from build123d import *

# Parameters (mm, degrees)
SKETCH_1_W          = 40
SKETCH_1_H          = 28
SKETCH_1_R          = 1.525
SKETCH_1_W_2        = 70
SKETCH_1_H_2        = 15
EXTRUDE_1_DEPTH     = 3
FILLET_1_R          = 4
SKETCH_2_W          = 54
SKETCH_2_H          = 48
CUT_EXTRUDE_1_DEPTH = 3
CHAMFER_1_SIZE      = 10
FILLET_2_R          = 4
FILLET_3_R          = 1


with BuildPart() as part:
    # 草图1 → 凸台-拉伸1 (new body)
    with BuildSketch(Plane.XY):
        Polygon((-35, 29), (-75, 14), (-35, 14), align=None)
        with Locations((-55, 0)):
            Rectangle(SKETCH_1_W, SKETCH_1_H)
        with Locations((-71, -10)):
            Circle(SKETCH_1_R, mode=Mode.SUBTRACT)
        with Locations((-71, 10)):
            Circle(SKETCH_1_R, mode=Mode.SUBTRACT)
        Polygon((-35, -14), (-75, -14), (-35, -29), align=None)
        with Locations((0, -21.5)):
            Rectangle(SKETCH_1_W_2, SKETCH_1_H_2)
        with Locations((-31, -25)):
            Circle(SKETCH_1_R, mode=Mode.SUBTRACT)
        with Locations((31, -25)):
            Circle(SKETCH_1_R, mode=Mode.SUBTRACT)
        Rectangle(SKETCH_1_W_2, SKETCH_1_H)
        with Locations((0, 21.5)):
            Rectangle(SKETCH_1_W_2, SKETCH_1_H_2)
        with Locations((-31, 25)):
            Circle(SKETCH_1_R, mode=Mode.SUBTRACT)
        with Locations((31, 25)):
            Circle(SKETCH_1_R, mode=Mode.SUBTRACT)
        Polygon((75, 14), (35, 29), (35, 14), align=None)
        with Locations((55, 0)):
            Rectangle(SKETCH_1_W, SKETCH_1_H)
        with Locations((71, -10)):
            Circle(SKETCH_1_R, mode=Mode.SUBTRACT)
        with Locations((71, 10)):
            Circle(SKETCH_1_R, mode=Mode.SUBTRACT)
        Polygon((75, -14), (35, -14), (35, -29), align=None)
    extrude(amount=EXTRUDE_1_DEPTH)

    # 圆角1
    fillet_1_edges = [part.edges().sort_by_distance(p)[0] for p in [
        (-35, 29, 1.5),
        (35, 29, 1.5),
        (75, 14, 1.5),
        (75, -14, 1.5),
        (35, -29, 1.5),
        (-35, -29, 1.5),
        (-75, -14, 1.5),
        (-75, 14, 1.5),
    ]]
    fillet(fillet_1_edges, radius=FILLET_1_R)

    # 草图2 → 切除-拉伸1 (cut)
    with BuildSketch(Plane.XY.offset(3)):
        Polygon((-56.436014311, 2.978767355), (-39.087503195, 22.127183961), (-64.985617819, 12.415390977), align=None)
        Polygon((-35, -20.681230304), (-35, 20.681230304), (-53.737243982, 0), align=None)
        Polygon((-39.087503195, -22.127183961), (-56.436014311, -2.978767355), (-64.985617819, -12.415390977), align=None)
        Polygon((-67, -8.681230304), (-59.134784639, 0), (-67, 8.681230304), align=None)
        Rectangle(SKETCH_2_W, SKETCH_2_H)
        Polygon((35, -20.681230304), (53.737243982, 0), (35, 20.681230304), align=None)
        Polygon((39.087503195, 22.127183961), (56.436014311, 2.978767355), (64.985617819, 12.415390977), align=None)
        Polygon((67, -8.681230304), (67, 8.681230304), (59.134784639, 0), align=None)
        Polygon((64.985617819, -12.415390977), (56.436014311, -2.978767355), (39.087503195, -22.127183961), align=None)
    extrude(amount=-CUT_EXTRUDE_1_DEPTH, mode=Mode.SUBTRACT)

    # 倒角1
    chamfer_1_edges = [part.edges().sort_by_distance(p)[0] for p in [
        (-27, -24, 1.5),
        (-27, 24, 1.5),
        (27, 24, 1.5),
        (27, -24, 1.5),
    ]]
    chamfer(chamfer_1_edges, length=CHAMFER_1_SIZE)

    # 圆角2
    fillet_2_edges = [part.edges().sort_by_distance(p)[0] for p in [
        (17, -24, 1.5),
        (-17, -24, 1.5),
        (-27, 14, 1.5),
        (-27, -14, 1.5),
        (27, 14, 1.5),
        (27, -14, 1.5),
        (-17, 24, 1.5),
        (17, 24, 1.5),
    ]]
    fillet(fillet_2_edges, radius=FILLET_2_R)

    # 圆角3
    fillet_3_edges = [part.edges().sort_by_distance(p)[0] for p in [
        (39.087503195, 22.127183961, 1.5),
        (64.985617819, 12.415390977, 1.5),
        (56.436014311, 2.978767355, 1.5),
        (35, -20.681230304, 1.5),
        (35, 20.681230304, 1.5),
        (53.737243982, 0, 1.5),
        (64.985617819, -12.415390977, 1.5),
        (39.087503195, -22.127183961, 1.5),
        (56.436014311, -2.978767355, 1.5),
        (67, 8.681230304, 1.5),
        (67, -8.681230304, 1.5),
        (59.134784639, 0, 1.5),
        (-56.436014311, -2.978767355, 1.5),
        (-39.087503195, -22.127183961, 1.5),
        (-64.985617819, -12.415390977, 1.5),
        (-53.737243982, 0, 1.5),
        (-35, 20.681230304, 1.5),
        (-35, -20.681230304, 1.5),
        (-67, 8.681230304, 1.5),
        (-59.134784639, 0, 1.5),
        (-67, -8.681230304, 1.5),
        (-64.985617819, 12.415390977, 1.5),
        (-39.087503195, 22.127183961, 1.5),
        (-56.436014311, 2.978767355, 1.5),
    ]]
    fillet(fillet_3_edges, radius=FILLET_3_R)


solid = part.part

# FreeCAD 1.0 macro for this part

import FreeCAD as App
import Part
import Sketcher

V = App.Vector
Q = App.Units.Quantity


def edges_at(feature, points):
    """Names of the edges that pass closest to the given points."""
    edges = feature.Shape.Edges
    near = lambda p: min(range(len(edges)), key=lambda i: edges[i].distToShape(Part.Vertex(*p))[0])
    return sorted({f"Edge{near(p) + 1}" for p in points})


def add_polygon(sketch, points):
    """Adds a closed chain of lines whose ends are joined by coincident constraints."""
    first, n = sketch.GeometryCount, len(points)
    for a, b in zip(points, points[1:] + points[:1]):
        sketch.addGeometry(Part.LineSegment(App.Vector(*a, 0), App.Vector(*b, 0)), False)
    for i in range(n):
        sketch.addConstraint(Sketcher.Constraint("Coincident", first + i, 2, first + (i + 1) % n, 1))

doc = App.newDocument("Part")
params = doc.addObject("Spreadsheet::Sheet", "Params")
for row, (alias, value) in enumerate([
    ("sketch1_diameter", "3.05 mm"),
    ("sketch1_width", "70 mm"),
    ("sketch1_height", "28 mm"),
    ("pad1_length", "3 mm"),
    ("fillet_radius", "4 mm"),
    ("sketch2_width", "54 mm"),
    ("sketch2_height", "48 mm"),
    ("pocket1_length", "3 mm"),
    ("chamfer_size", "10 mm"),
    ("fillet2_radius", "4 mm"),
    ("fillet3_radius", "1 mm"),
], start=1):
    params.set(f"A{row}", alias)
    params.set(f"B{row}", "=" + value)
    params.setAlias(f"B{row}", alias)

body = doc.addObject("PartDesign::Body", "Body")

# Sketch on XY plane
sketch1 = body.newObject("Sketcher::SketchObject", "Sketch")
sketch1.AttachmentSupport = (doc.getObject("XY_Plane"), [""])
sketch1.MapMode = "FlatFace"
add_polygon(sketch1, [(-35, 29), (-75, 14), (-75, -14), (-35, -29), (35, -29), (75, -14), (75, 14), (35, 29)])  # lines 0-7
sketch1.addGeometry(Part.Circle(V(-31, -25, 0), V(0, 0, 1), 1.5), False)  # 8
sketch1.addGeometry(Part.Circle(V(-71, -10, 0), V(0, 0, 1), 1.5), False)  # 9
sketch1.addGeometry(Part.Circle(V(31, -25, 0), V(0, 0, 1), 1.5), False)  # 10
sketch1.addGeometry(Part.Circle(V(71, -10, 0), V(0, 0, 1), 1.5), False)  # 11
sketch1.addGeometry(Part.Circle(V(-71, 10, 0), V(0, 0, 1), 1.5), False)  # 12
sketch1.addGeometry(Part.Circle(V(-31, 25, 0), V(0, 0, 1), 1.5), False)  # 13
sketch1.addGeometry(Part.Circle(V(71, 10, 0), V(0, 0, 1), 1.5), False)  # 14
sketch1.addGeometry(Part.Circle(V(31, 25, 0), V(0, 0, 1), 1.5), False)  # 15
sketch1.addConstraint([
    Sketcher.Constraint("Vertical", 1),
    Sketcher.Constraint("Horizontal", 3),
    Sketcher.Constraint("Vertical", 5),
    Sketcher.Constraint("Horizontal", 7),
    Sketcher.Constraint("Equal", 8, 9),
    Sketcher.Constraint("Equal", 9, 10),
    Sketcher.Constraint("Equal", 10, 11),
    Sketcher.Constraint("Equal", 11, 12),
    Sketcher.Constraint("Equal", 12, 13),
    Sketcher.Constraint("Equal", 13, 14),
    Sketcher.Constraint("Equal", 14, 15),
    Sketcher.Constraint("Symmetric", 11, 3, 12, 3, -1, 1),
    Sketcher.Constraint("Symmetric", 10, 3, 13, 3, -1, 1),
    Sketcher.Constraint("Symmetric", 9, 3, 14, 3, -1, 1),
    Sketcher.Constraint("Symmetric", 8, 3, 15, 3, -1, 1),
    Sketcher.Constraint("Symmetric", 0, 2, 4, 2, -1, 1),
    Sketcher.Constraint("Symmetric", 2, 2, 6, 2, -1, 1),
    Sketcher.Constraint("Symmetric", 8, 3, 10, 3, -2),
    Sketcher.Constraint("Symmetric", 9, 3, 11, 3, -2),
    Sketcher.Constraint("Parallel", 0, 4),
    Sketcher.Constraint("Parallel", 2, 6),
    Sketcher.Constraint("Horizontal", 1, 2, 4, 2),
    Sketcher.Constraint("Vertical", 3, 2, 6, 2),
    Sketcher.Constraint("Diameter", 8, Q("3.05 mm")),
    Sketcher.Constraint("DistanceX", 3, 1, 3, 2, Q("70 mm")),
    Sketcher.Constraint("DistanceY", 1, 2, 1, 1, Q("28 mm")),
    Sketcher.Constraint("DistanceX", 8, 3, -1, 1, Q("31 mm")),
    Sketcher.Constraint("DistanceY", 8, 3, -1, 1, Q("25 mm")),
    Sketcher.Constraint("DistanceX", 9, 3, -1, 1, Q("71 mm")),
    Sketcher.Constraint("DistanceY", 9, 3, -1, 1, Q("10 mm")),
    Sketcher.Constraint("DistanceX", 0, 2, -1, 1, Q("75 mm")),
    Sketcher.Constraint("DistanceY", 2, 2, -1, 1, Q("29 mm")),
])
sketch1.setExpression("Constraints[31]", "Params.sketch1_diameter")
sketch1.setExpression("Constraints[32]", "Params.sketch1_width")
sketch1.setExpression("Constraints[33]", "Params.sketch1_height")
pad1 = body.newObject("PartDesign::Pad", "Pad")
pad1.Profile = sketch1
pad1.setExpression("Length", "Params.pad1_length")
doc.recompute()

fillet = body.newObject("PartDesign::Fillet", "Fillet")
fillet.Base = (pad1, edges_at(pad1, [
    (-35, 29, 1.5),
    (35, 29, 1.5),
    (75, 14, 1.5),
    (75, -14, 1.5),
    (35, -29, 1.5),
    (-35, -29, 1.5),
    (-75, -14, 1.5),
    (-75, 14, 1.5),
]))
fillet.setExpression("Radius", "Params.fillet_radius")

# Sketch on XY plane
sketch2 = body.newObject("Sketcher::SketchObject", "Sketch001")
sketch2.AttachmentSupport = (doc.getObject("XY_Plane"), [""])
sketch2.MapMode = "FlatFace"
sketch2.AttachmentOffset = App.Placement(V(0, 0, 3), App.Rotation())
add_polygon(sketch2, [(-56, 3), (-39, 22), (-65, 12)])  # lines 0-2
add_polygon(sketch2, [(-35, -21), (-35, 21), (-54, 0)])  # lines 3-5
add_polygon(sketch2, [(-39, -22), (-56, -3), (-65, -12)])  # lines 6-8
add_polygon(sketch2, [(-67, -9), (-59, 0), (-67, 9)])  # lines 9-11
add_polygon(sketch2, [(-27, 24), (-27, -24), (27, -24), (27, 24)])  # lines 12-15
add_polygon(sketch2, [(35, -21), (54, 0), (35, 21)])  # lines 16-18
add_polygon(sketch2, [(39, 22), (56, 3), (65, 12)])  # lines 19-21
add_polygon(sketch2, [(67, -9), (67, 9), (59, 0)])  # lines 22-24
add_polygon(sketch2, [(65, -12), (56, -3), (39, -22)])  # lines 25-27
sketch2.addConstraint([
    Sketcher.Constraint("Vertical", 3),
    Sketcher.Constraint("Vertical", 11),
    Sketcher.Constraint("Vertical", 12),
    Sketcher.Constraint("Horizontal", 13),
    Sketcher.Constraint("Vertical", 14),
    Sketcher.Constraint("Horizontal", 15),
    Sketcher.Constraint("Vertical", 18),
    Sketcher.Constraint("Vertical", 22),
    Sketcher.Constraint("Symmetric", 12, 2, 14, 2, -1, 1),
    Sketcher.Constraint("Symmetric", 4, 2, 16, 2, -1, 1),
    Sketcher.Constraint("Symmetric", 5, 2, 17, 2, -1, 1),
    Sketcher.Constraint("Symmetric", 6, 2, 19, 2, -1, 1),
    Sketcher.Constraint("Symmetric", 7, 2, 20, 2, -1, 1),
    Sketcher.Constraint("Symmetric", 8, 2, 21, 2, -1, 1),
    Sketcher.Constraint("Symmetric", 11, 2, 22, 2, -1, 1),
    Sketcher.Constraint("Symmetric", 9, 2, 23, 2, -1, 1),
    Sketcher.Constraint("Symmetric", 2, 2, 25, 2, -1, 1),
    Sketcher.Constraint("Symmetric", 0, 2, 26, 2, -1, 1),
    Sketcher.Constraint("Symmetric", 1, 2, 27, 2, -1, 1),
    Sketcher.Constraint("Symmetric", 2, 2, 19, 2, -2),
    Sketcher.Constraint("Symmetric", 1, 2, 20, 2, -2),
    Sketcher.Constraint("Symmetric", 0, 2, 21, 2, -2),
    Sketcher.Constraint("PointOnObject", 4, 2, -1),
    Sketcher.Constraint("PointOnObject", 9, 2, -1),
    Sketcher.Constraint("Parallel", 0, 4),
    Sketcher.Constraint("Parallel", 2, 5),
    Sketcher.Constraint("Parallel", 5, 6),
    Sketcher.Constraint("Parallel", 7, 9),
    Sketcher.Constraint("Parallel", 6, 10),
    Sketcher.Constraint("Parallel", 9, 16),
    Sketcher.Constraint("Parallel", 19, 24),
    Sketcher.Constraint("DistanceX", 13, 1, 13, 2, Q("54 mm")),
    Sketcher.Constraint("DistanceY", 12, 2, 12, 1, Q("48 mm")),
    Sketcher.Constraint("DistanceX", 3, 2, -1, 1, Q("35 mm")),
    Sketcher.Constraint("DistanceX", 10, 2, -1, 1, Q("67 mm")),
    Sketcher.Constraint("DistanceY", 22, 2, 17, 2, Q("12 mm")),
    Sketcher.Constraint("Distance", 1, Q("27.659199 mm")),
    Sketcher.Constraint("DistanceY", 3, 1, 3, 2, Q("41.362461 mm")),
    Sketcher.Constraint("Distance", 0, Q("25.838589 mm")),
    Sketcher.Constraint("Distance", 2, Q("12.73364 mm")),
    Sketcher.Constraint("DistanceY", -1, 1, 1, 2, Q("12.415391 mm")),
    Sketcher.Constraint("DistanceX", 2, 2, 4, 2, Q("2.69877 mm")),
])
sketch2.setExpression("Constraints[59]", "Params.sketch2_width")
sketch2.setExpression("Constraints[60]", "Params.sketch2_height")
pocket1 = body.newObject("PartDesign::Pocket", "Pocket")
pocket1.Profile = sketch2
pocket1.setExpression("Length", "Params.pocket1_length")
doc.recompute()

chamfer = body.newObject("PartDesign::Chamfer", "Chamfer")
chamfer.Base = (pocket1, edges_at(pocket1, [
    (-27, -24, 1.5),
    (-27, 24, 1.5),
    (27, 24, 1.5),
    (27, -24, 1.5),
]))
chamfer.setExpression("Size", "Params.chamfer_size")
doc.recompute()

fillet2 = body.newObject("PartDesign::Fillet", "Fillet001")
fillet2.Base = (chamfer, edges_at(chamfer, [
    (17, -24, 1.5),
    (-17, -24, 1.5),
    (-27, 14, 1.5),
    (-27, -14, 1.5),
    (27, 14, 1.5),
    (27, -14, 1.5),
    (-17, 24, 1.5),
    (17, 24, 1.5),
]))
fillet2.setExpression("Radius", "Params.fillet2_radius")
doc.recompute()

fillet3 = body.newObject("PartDesign::Fillet", "Fillet002")
fillet3.Base = (fillet2, edges_at(fillet2, [
    (39.088, 22.127, 1.5),
    (64.986, 12.415, 1.5),
    (56.436, 2.979, 1.5),
    (35, -20.681, 1.5),
    (35, 20.681, 1.5),
    (53.737, 0, 1.5),
    (64.986, -12.415, 1.5),
    (39.088, -22.127, 1.5),
    (56.436, -2.979, 1.5),
    (67, 8.681, 1.5),
    (67, -8.681, 1.5),
    (59.135, 0, 1.5),
    (-56.436, -2.979, 1.5),
    (-39.088, -22.127, 1.5),
    (-64.986, -12.415, 1.5),
    (-53.737, 0, 1.5),
    (-35, 20.681, 1.5),
    (-35, -20.681, 1.5),
    (-67, 8.681, 1.5),
    (-59.135, 0, 1.5),
    (-67, -8.681, 1.5),
    (-64.986, 12.415, 1.5),
    (-39.088, 22.127, 1.5),
    (-56.436, 2.979, 1.5),
]))
fillet3.setExpression("Radius", "Params.fillet3_radius")

doc.recompute()
